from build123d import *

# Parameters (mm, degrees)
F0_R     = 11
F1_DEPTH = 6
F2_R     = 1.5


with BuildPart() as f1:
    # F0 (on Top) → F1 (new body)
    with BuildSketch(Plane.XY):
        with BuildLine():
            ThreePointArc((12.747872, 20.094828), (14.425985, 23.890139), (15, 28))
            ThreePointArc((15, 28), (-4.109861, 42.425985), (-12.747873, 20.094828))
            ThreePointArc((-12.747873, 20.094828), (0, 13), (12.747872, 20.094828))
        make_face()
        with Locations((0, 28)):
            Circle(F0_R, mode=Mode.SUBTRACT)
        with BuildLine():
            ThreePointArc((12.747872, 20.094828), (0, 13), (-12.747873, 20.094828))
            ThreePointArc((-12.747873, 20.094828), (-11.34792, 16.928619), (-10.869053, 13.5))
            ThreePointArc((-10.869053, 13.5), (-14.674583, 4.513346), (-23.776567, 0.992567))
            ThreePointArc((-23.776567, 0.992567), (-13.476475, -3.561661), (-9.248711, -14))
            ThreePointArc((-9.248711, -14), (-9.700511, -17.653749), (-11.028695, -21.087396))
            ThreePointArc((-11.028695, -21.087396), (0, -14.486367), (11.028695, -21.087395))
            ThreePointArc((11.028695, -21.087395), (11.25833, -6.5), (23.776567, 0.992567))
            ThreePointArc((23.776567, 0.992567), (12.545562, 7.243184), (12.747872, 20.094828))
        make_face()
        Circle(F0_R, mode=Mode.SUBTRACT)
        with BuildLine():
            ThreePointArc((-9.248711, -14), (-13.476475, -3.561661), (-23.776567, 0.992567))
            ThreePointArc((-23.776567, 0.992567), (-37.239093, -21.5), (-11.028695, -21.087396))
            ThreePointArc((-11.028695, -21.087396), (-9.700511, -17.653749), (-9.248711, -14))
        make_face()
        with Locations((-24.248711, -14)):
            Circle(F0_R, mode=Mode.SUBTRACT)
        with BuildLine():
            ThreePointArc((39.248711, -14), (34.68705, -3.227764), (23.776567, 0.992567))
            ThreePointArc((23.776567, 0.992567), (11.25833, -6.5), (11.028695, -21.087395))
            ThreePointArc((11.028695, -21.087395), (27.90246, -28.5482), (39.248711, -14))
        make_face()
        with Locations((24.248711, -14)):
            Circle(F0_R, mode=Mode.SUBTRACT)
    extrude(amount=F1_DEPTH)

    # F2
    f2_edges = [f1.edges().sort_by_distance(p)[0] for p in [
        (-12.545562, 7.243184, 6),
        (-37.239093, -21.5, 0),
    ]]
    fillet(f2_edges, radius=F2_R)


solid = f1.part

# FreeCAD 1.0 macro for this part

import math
import FreeCAD as App
import Part
import Sketcher

V = App.Vector
Q = App.Units.Quantity


def edges_at(feature, points):
    """Names of the edges that pass closest to the given points."""
    edges = feature.Shape.Edges
    near = lambda p: min(range(len(edges)), key=lambda i: edges[i].distToShape(Part.Vertex(*p))[0])
    return sorted({f"Edge{near(p) + 1}" for p in points})

doc = App.newDocument("Part")
body = doc.addObject("PartDesign::Body", "Body")

sketch1 = doc.addObject("Sketcher::SketchObject", "Sketch")
body.addObject(sketch1)
sketch1.AttachmentSupport = (doc.XY_Plane, [""])
sketch1.MapMode = "FlatFace"
sketch1.addGeometry(Part.ArcOfCircle(Part.Circle(V(0, 28, 0), V(0, 0, 1), 15), math.radians(-32), math.radians(0)), False)
sketch1.addGeometry(Part.ArcOfCircle(Part.Circle(V(0, 28, 0), V(0, 0, 1), 15), math.radians(0), math.radians(212)), False)
sketch1.addGeometry(Part.ArcOfCircle(Part.Circle(V(-23, 14, 0), V(0, 0, 1), 13), math.radians(0), math.radians(32)), False)
sketch1.addGeometry(Part.ArcOfCircle(Part.Circle(V(-23, 14, 0), V(0, 0, 1), 13), math.radians(-92), math.radians(0)), False)
sketch1.addGeometry(Part.ArcOfCircle(Part.Circle(V(-24, -14, 0), V(0, 0, 1), 15), math.radians(88), math.radians(332)), False)
sketch1.addGeometry(Part.ArcOfCircle(Part.Circle(V(0, -27, 0), V(0, 0, 1), 13), math.radians(28), math.radians(152)), False)
sketch1.addGeometry(Part.ArcOfCircle(Part.Circle(V(24, -14, 0), V(0, 0, 1), 15), math.radians(-152), math.radians(0)), False)
sketch1.addGeometry(Part.ArcOfCircle(Part.Circle(V(24, -14, 0), V(0, 0, 1), 15), math.radians(0), math.radians(92)), False)
sketch1.addGeometry(Part.ArcOfCircle(Part.Circle(V(23, 14, 0), V(0, 0, 1), 13), math.radians(148), math.radians(272)), False)
sketch1.addGeometry(Part.Circle(V(-24, -14, 0), V(0, 0, 1), 11), False)
sketch1.addGeometry(Part.Circle(V(24, -14, 0), V(0, 0, 1), 11), False)
sketch1.addGeometry(Part.Circle(V(0, 0, 0), V(0, 0, 1), 11), False)
sketch1.addGeometry(Part.Circle(V(0, 28, 0), V(0, 0, 1), 11), False)
sketch1.addConstraint(Sketcher.Constraint("Tangent", 0, 2, 1, 1))
sketch1.addConstraint(Sketcher.Constraint("Tangent", 1, 2, 2, 2))
sketch1.addConstraint(Sketcher.Constraint("Tangent", 2, 1, 3, 2))
sketch1.addConstraint(Sketcher.Constraint("Tangent", 3, 1, 4, 1))
sketch1.addConstraint(Sketcher.Constraint("Tangent", 4, 2, 5, 2))
sketch1.addConstraint(Sketcher.Constraint("Tangent", 5, 1, 6, 1))
sketch1.addConstraint(Sketcher.Constraint("Tangent", 6, 2, 7, 1))
sketch1.addConstraint(Sketcher.Constraint("Tangent", 7, 2, 8, 2))
sketch1.addConstraint(Sketcher.Constraint("Tangent", 8, 1, 0, 1))
sketch1.addConstraint(Sketcher.Constraint("Coincident", 11, 3, -1, 1))
sketch1.addConstraint(Sketcher.Constraint("Coincident", 9, 3, 4, 3))
sketch1.addConstraint(Sketcher.Constraint("Coincident", 10, 3, 6, 3))
sketch1.addConstraint(Sketcher.Constraint("Coincident", 12, 3, 0, 3))
sketch1.addConstraint(Sketcher.Constraint("Equal", 1, 4))
sketch1.addConstraint(Sketcher.Constraint("Equal", 3, 5))
sketch1.addConstraint(Sketcher.Constraint("Equal", 4, 6))
sketch1.addConstraint(Sketcher.Constraint("Equal", 6, 7))
sketch1.addConstraint(Sketcher.Constraint("Equal", 5, 8))
sketch1.addConstraint(Sketcher.Constraint("Equal", 9, 10))
sketch1.addConstraint(Sketcher.Constraint("Equal", 10, 11))
sketch1.addConstraint(Sketcher.Constraint("Equal", 11, 12))
sketch1.addConstraint(Sketcher.Constraint("Symmetric", 4, 3, 6, 3, -2))
sketch1.addConstraint(Sketcher.Constraint("Symmetric", 1, 2, 8, 1, -2))
sketch1.addConstraint(Sketcher.Constraint("PointOnObject", 1, 3, -2))
sketch1.addConstraint(Sketcher.Constraint("Horizontal", 12, 3, 0, 2))
sketch1.addConstraint(Sketcher.Constraint("Horizontal", 8, 3, 2, 1))
sketch1.addConstraint(Sketcher.Constraint("Horizontal", 10, 3, 6, 2))
sketch1.addConstraint(Sketcher.Constraint("Diameter", 9, Q("22 mm")))
sketch1.addConstraint(Sketcher.Constraint("Radius", 1, Q("15 mm")))
sketch1.addConstraint(Sketcher.Constraint("DistanceY", -1, 1, 0, 3, Q("27.999999 mm")))
sketch1.addConstraint(Sketcher.Constraint("DistanceY", 4, 3, -1, 1, Q("14.000001 mm")))
sketch1.addConstraint(Sketcher.Constraint("DistanceY", 5, 3, -1, 1, Q("27 mm")))
sketch1.addConstraint(Sketcher.Constraint("DistanceY", -1, 1, 3, 3, Q("13.500001 mm")))
pad1 = doc.addObject("PartDesign::Pad", "Pad")
body.addObject(pad1)
pad1.Profile = sketch1
pad1.Length = 6
doc.recompute()

fillet = doc.addObject("PartDesign::Fillet", "Fillet")
body.addObject(fillet)
fillet.Base = (pad1, edges_at(pad1, [(-14.675, 4.513, 6), (-37.239, -21.5, 0)]))
fillet.Radius = 1.5

doc.recompute()
